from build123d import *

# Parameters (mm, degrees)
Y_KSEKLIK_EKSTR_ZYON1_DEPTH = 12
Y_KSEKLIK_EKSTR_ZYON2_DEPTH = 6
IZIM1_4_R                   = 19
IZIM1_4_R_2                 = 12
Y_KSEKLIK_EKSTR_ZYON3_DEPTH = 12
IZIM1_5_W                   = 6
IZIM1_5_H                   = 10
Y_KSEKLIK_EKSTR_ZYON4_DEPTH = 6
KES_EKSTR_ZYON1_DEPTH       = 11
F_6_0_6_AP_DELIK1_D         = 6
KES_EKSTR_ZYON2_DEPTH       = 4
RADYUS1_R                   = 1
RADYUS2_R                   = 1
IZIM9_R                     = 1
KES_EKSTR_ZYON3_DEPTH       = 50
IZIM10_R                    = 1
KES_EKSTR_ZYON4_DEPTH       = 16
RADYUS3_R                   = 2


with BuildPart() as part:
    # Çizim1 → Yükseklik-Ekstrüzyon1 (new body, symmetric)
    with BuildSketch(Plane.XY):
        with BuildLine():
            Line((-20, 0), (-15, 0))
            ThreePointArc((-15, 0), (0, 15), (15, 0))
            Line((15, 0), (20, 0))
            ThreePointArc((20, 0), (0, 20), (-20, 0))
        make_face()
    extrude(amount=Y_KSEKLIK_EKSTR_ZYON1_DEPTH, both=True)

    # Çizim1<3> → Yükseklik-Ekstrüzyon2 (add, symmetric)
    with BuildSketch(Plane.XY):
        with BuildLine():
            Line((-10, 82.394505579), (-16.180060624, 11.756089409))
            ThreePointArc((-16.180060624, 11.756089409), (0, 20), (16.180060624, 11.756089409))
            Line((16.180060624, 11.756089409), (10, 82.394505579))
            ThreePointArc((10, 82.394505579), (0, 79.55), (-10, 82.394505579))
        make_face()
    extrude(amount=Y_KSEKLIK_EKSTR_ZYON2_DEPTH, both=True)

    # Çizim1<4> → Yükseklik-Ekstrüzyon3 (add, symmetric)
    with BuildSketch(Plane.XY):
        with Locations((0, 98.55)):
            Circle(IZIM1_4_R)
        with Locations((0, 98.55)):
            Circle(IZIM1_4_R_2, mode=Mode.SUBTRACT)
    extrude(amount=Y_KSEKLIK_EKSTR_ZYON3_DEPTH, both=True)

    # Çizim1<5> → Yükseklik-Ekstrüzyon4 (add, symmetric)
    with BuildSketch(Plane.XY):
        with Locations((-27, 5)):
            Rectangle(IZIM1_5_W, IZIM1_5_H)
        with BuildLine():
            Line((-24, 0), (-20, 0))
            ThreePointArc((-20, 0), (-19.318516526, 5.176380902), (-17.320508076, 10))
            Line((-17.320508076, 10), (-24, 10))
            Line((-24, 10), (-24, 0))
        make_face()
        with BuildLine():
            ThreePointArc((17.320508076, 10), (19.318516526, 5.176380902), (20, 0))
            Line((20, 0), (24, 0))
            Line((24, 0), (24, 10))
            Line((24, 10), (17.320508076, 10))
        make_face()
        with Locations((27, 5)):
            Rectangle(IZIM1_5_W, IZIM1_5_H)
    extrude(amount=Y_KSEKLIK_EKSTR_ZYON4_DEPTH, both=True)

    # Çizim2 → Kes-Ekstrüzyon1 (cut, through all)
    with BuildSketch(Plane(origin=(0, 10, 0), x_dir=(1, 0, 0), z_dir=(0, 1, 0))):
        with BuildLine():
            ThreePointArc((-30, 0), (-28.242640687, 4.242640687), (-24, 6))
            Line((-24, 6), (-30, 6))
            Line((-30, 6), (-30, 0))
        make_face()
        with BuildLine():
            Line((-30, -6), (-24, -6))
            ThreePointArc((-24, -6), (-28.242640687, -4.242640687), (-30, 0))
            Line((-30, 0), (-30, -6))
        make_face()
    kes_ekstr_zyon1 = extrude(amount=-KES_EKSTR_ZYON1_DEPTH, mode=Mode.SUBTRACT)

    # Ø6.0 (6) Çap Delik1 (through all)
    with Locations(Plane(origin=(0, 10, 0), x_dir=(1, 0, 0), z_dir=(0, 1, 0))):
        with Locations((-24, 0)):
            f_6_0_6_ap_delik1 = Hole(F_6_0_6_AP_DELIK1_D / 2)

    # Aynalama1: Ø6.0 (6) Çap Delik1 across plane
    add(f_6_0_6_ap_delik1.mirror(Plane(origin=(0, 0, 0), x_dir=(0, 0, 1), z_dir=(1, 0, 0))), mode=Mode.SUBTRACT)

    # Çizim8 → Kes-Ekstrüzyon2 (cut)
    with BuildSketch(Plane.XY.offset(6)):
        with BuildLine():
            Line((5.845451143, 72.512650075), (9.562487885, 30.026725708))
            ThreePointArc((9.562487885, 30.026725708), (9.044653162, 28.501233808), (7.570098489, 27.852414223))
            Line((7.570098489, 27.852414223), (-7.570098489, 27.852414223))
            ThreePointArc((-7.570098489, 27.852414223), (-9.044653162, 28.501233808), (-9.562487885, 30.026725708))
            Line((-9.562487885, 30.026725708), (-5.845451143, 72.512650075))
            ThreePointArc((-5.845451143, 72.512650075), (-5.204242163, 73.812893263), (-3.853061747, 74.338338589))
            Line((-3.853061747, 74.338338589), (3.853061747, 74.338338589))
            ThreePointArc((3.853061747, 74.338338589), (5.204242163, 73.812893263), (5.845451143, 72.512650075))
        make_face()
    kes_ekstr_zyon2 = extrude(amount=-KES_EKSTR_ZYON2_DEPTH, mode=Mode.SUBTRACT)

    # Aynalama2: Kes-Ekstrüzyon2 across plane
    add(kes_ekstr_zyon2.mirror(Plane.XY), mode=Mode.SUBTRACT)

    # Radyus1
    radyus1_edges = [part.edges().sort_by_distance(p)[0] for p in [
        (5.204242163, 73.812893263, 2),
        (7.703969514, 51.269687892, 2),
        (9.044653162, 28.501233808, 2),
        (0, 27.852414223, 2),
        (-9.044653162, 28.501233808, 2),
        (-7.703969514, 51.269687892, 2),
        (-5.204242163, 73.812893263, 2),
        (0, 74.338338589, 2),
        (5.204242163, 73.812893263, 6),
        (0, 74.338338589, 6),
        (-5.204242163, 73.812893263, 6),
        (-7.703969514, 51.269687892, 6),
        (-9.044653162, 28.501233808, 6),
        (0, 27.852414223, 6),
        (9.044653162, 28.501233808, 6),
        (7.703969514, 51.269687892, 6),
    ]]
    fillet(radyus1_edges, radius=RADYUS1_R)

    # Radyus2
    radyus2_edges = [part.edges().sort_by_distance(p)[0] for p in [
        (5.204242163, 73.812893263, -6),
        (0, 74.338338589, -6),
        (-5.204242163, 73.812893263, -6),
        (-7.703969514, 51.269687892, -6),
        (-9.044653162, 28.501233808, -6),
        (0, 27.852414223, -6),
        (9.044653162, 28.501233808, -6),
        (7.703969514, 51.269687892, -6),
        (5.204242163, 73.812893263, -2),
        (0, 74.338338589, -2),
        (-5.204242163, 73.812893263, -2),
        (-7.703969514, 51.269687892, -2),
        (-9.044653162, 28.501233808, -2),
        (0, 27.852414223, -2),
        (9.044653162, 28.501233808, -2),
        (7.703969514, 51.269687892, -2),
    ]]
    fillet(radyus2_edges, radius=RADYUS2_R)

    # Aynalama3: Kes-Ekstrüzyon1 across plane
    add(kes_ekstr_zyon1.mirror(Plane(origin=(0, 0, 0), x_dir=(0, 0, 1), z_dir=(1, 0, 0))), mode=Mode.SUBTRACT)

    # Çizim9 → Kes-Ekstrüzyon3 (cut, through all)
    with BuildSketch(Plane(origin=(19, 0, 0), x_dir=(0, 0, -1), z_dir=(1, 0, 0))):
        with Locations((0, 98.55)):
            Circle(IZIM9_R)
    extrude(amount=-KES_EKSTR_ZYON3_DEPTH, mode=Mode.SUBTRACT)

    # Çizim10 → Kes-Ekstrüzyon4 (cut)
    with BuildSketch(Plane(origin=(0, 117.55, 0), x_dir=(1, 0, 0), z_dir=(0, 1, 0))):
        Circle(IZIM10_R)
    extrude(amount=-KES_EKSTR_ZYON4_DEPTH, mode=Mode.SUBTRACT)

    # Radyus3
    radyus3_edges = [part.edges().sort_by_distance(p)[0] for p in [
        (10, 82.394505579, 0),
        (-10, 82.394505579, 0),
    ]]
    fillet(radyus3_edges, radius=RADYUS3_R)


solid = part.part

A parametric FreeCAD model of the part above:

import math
import FreeCAD as App
import Part
import Sketcher
Q = App.Units.Quantity


def edges_at(feature, points):
    """Names of the edges that pass closest to the given points."""
    edges = feature.Shape.Edges
    near = lambda p: min(range(len(edges)), key=lambda i: edges[i].distToShape(Part.Vertex(*p))[0])
    return sorted({f"Edge{near(p) + 1}" for p in points})

doc = App.newDocument("Part")
body = doc.addObject("PartDesign::Body", "Body")

sketch1 = body.newObject("Sketcher::SketchObject", "Sketch")
sketch1.AttachmentSupport = (doc.getObject("XY_Plane"), [""])
sketch1.MapMode = "FlatFace"
sketch1.addGeometry(Part.LineSegment(App.Vector(-20, 0, 0), App.Vector(-15, 0, 0)), False)
sketch1.addGeometry(Part.ArcOfCircle(Part.Circle(App.Vector(0, 0, 0), App.Vector(0, 0, 1), 15), math.radians(0), math.radians(180)), False)
sketch1.addGeometry(Part.LineSegment(App.Vector(15, 0, 0), App.Vector(20, 0, 0)), False)
sketch1.addGeometry(Part.ArcOfCircle(Part.Circle(App.Vector(0, 0, 0), App.Vector(0, 0, 1), 20), math.radians(0), math.radians(180)), False)
sketch1.addConstraint(Sketcher.Constraint("Coincident", 0, 2, 1, 2))
sketch1.addConstraint(Sketcher.Constraint("Coincident", 1, 1, 2, 1))
sketch1.addConstraint(Sketcher.Constraint("Coincident", 2, 2, 3, 1))
sketch1.addConstraint(Sketcher.Constraint("Coincident", 3, 2, 0, 1))
sketch1.addConstraint(Sketcher.Constraint("Horizontal", 0))
sketch1.addConstraint(Sketcher.Constraint("Horizontal", 2))
sketch1.addConstraint(Sketcher.Constraint("Coincident", 1, 3, -1, 1))
sketch1.addConstraint(Sketcher.Constraint("Coincident", 3, 3, -1, 1))
sketch1.addConstraint(Sketcher.Constraint("PointOnObject", 0, 2, -1))
sketch1.addConstraint(Sketcher.Constraint("PointOnObject", 1, 1, -1))
sketch1.addConstraint(Sketcher.Constraint("Radius", 1, Q("15 mm")))
sketch1.addConstraint(Sketcher.Constraint("Radius", 3, Q("20 mm")))
pad1 = body.newObject("PartDesign::Pad", "Pad")
pad1.Profile = sketch1
pad1.Length = 24
pad1.Midplane = True

sketch2 = body.newObject("Sketcher::SketchObject", "Sketch001")
sketch2.AttachmentSupport = (doc.getObject("XY_Plane"), [""])
sketch2.MapMode = "FlatFace"
sketch2.addGeometry(Part.LineSegment(App.Vector(-10, 82, 0), App.Vector(-16, 12, 0)), False)
sketch2.addGeometry(Part.ArcOfCircle(Part.Circle(App.Vector(0, 0, 0), App.Vector(0, 0, 1), 20), math.radians(36), math.radians(144)), False)
sketch2.addGeometry(Part.LineSegment(App.Vector(16, 12, 0), App.Vector(10, 82, 0)), False)
sketch2.addGeometry(Part.ArcOfCircle(Part.Circle(App.Vector(0, 99, 0), App.Vector(0, 0, 1), 19), math.radians(-122), math.radians(-58)), False)
sketch2.addConstraint(Sketcher.Constraint("Coincident", 0, 2, 1, 2))
sketch2.addConstraint(Sketcher.Constraint("Coincident", 1, 1, 2, 1))
sketch2.addConstraint(Sketcher.Constraint("Coincident", 2, 2, 3, 2))
sketch2.addConstraint(Sketcher.Constraint("Coincident", 3, 1, 0, 1))
sketch2.addConstraint(Sketcher.Constraint("Coincident", 1, 3, -1, 1))
sketch2.addConstraint(Sketcher.Constraint("Symmetric", 2, 2, 3, 1, -2))
sketch2.addConstraint(Sketcher.Constraint("Horizontal", 0, 2, 1, 1))
sketch2.addConstraint(Sketcher.Constraint("Radius", 1, Q("20 mm")))
sketch2.addConstraint(Sketcher.Constraint("Radius", 3, Q("19 mm")))
sketch2.addConstraint(Sketcher.Constraint("Angle", 0, Q("-95 deg")))
sketch2.addConstraint(Sketcher.Constraint("DistanceX", -1, 1, 2, 2, Q("10 mm")))
sketch2.addConstraint(Sketcher.Constraint("DistanceY", -1, 1, 3, 3, Q("98.55 mm")))
pad2 = body.newObject("PartDesign::Pad", "Pad001")
pad2.Profile = sketch2
pad2.Length = 12
pad2.Midplane = True

sketch3 = body.newObject("Sketcher::SketchObject", "Sketch002")
sketch3.AttachmentSupport = (doc.getObject("XY_Plane"), [""])
sketch3.MapMode = "FlatFace"
sketch3.addGeometry(Part.Circle(App.Vector(0, 99, 0), App.Vector(0, 0, 1), 19), False)
sketch3.addGeometry(Part.Circle(App.Vector(0, 99, 0), App.Vector(0, 0, 1), 12), False)
sketch3.addConstraint(Sketcher.Constraint("Coincident", 1, 3, 0, 3))
sketch3.addConstraint(Sketcher.Constraint("PointOnObject", 0, 3, -2))
sketch3.addConstraint(Sketcher.Constraint("Diameter", 0, Q("38 mm")))
sketch3.addConstraint(Sketcher.Constraint("Diameter", 1, Q("24 mm")))
sketch3.addConstraint(Sketcher.Constraint("DistanceY", -1, 1, 0, 3, Q("98.55 mm")))
pad3 = body.newObject("PartDesign::Pad", "Pad002")
pad3.Profile = sketch3
pad3.Length = 24
pad3.Midplane = True

sketch4 = body.newObject("Sketcher::SketchObject", "Sketch003")
sketch4.AttachmentSupport = (doc.getObject("XY_Plane"), [""])
sketch4.MapMode = "FlatFace"
sketch4.addGeometry(Part.LineSegment(App.Vector(-30, 10, 0), App.Vector(-30, 0, 0)), False)
sketch4.addGeometry(Part.LineSegment(App.Vector(-30, 0, 0), App.Vector(-20, 0, 0)), False)
sketch4.addGeometry(Part.ArcOfCircle(Part.Circle(App.Vector(0, 0, 0), App.Vector(0, 0, 1), 20), math.radians(150), math.radians(180)), False)
sketch4.addGeometry(Part.LineSegment(App.Vector(-17, 10, 0), App.Vector(-30, 10, 0)), False)
sketch4.addGeometry(Part.ArcOfCircle(Part.Circle(App.Vector(0, 0, 0), App.Vector(0, 0, 1), 20), math.radians(0), math.radians(30)), False)
sketch4.addGeometry(Part.LineSegment(App.Vector(20, 0, 0), App.Vector(30, 0, 0)), False)
sketch4.addGeometry(Part.LineSegment(App.Vector(30, 0, 0), App.Vector(30, 10, 0)), False)
sketch4.addGeometry(Part.LineSegment(App.Vector(30, 10, 0), App.Vector(17, 10, 0)), False)
sketch4.addConstraint(Sketcher.Constraint("Coincident", 0, 2, 1, 1))
sketch4.addConstraint(Sketcher.Constraint("Coincident", 1, 2, 2, 2))
sketch4.addConstraint(Sketcher.Constraint("Coincident", 2, 1, 3, 1))
sketch4.addConstraint(Sketcher.Constraint("Coincident", 3, 2, 0, 1))
sketch4.addConstraint(Sketcher.Constraint("Coincident", 4, 1, 5, 1))
sketch4.addConstraint(Sketcher.Constraint("Coincident", 5, 2, 6, 1))
sketch4.addConstraint(Sketcher.Constraint("Coincident", 6, 2, 7, 1))
sketch4.addConstraint(Sketcher.Constraint("Coincident", 7, 2, 4, 2))
sketch4.addConstraint(Sketcher.Constraint("Vertical", 0))
sketch4.addConstraint(Sketcher.Constraint("Horizontal", 1))
sketch4.addConstraint(Sketcher.Constraint("Horizontal", 3))
sketch4.addConstraint(Sketcher.Constraint("Horizontal", 5))
sketch4.addConstraint(Sketcher.Constraint("Vertical", 6))
sketch4.addConstraint(Sketcher.Constraint("Horizontal", 7))
sketch4.addConstraint(Sketcher.Constraint("Coincident", 2, 3, -1, 1))
sketch4.addConstraint(Sketcher.Constraint("Coincident", 4, 3, -1, 1))
sketch4.addConstraint(Sketcher.Constraint("Equal", 2, 4))
sketch4.addConstraint(Sketcher.Constraint("Symmetric", 0, 2, 5, 2, -1, 1))
sketch4.addConstraint(Sketcher.Constraint("PointOnObject", 0, 2, -1))
sketch4.addConstraint(Sketcher.Constraint("Horizontal", 3, 2, 6, 2))
sketch4.addConstraint(Sketcher.Constraint("Equal", 5, 0))
sketch4.addConstraint(Sketcher.Constraint("Radius", 2, Q("20 mm")))
sketch4.addConstraint(Sketcher.Constraint("DistanceX", 1, 1, 1, 2, Q("10 mm")))
pad4 = body.newObject("PartDesign::Pad", "Pad003")
pad4.Profile = sketch4
pad4.Length = 12
pad4.Midplane = True

sketch5 = body.newObject("Sketcher::SketchObject", "Sketch004")
sketch5.AttachmentSupport = (doc.getObject("XZ_Plane"), [""])
sketch5.MapMode = "FlatFace"
sketch5.AttachmentOffset = App.Placement(App.Vector(0, 0, -10), App.Rotation())
sketch5.addGeometry(Part.ArcOfCircle(Part.Circle(App.Vector(-24, 0, 0), App.Vector(0, 0, 1), 6), math.radians(180), math.radians(270)), False)
sketch5.addGeometry(Part.LineSegment(App.Vector(-24, -6, 0), App.Vector(-30, -6, 0)), False)
sketch5.addGeometry(Part.LineSegment(App.Vector(-30, -6, 0), App.Vector(-30, 0, 0)), False)
sketch5.addGeometry(Part.LineSegment(App.Vector(-30, 6, 0), App.Vector(-24, 6, 0)), False)
sketch5.addGeometry(Part.ArcOfCircle(Part.Circle(App.Vector(-24, 0, 0), App.Vector(0, 0, 1), 6), math.radians(90), math.radians(180)), False)
sketch5.addGeometry(Part.LineSegment(App.Vector(-30, 0, 0), App.Vector(-30, 6, 0)), False)
sketch5.addConstraint(Sketcher.Constraint("Tangent", 0, 2, 1, 1))
sketch5.addConstraint(Sketcher.Constraint("Coincident", 1, 2, 2, 1))
sketch5.addConstraint(Sketcher.Constraint("Tangent", 2, 2, 0, 1))
sketch5.addConstraint(Sketcher.Constraint("Tangent", 3, 2, 4, 1))
sketch5.addConstraint(Sketcher.Constraint("Tangent", 4, 2, 5, 1))
sketch5.addConstraint(Sketcher.Constraint("Coincident", 5, 2, 3, 1))
sketch5.addConstraint(Sketcher.Constraint("Horizontal", 1))
sketch5.addConstraint(Sketcher.Constraint("Vertical", 2))
sketch5.addConstraint(Sketcher.Constraint("Horizontal", 3))
sketch5.addConstraint(Sketcher.Constraint("Vertical", 5))
sketch5.addConstraint(Sketcher.Constraint("Coincident", 4, 3, 0, 3))
sketch5.addConstraint(Sketcher.Constraint("Equal", 0, 4))
sketch5.addConstraint(Sketcher.Constraint("PointOnObject", 0, 3, -1))
sketch5.addConstraint(Sketcher.Constraint("Radius", 0, Q("6 mm")))
sketch5.addConstraint(Sketcher.Constraint("DistanceX", 0, 3, -1, 1, Q("24 mm")))
pocket1 = body.newObject("PartDesign::Pocket", "Pocket")
pocket1.Profile = sketch5
pocket1.Type = "ThroughAll"
pocket1.Reversed = True

sketch6 = body.newObject("Sketcher::SketchObject", "Sketch005")
sketch6.AttachmentSupport = (doc.getObject("XZ_Plane"), [""])
sketch6.MapMode = "FlatFace"
sketch6.AttachmentOffset = App.Placement(App.Vector(0, 0, -10), App.Rotation())
sketch6.addGeometry(Part.Circle(App.Vector(-24, 0, 0), App.Vector(0, 0, 1), 3), False)
sketch6.addConstraint(Sketcher.Constraint("PointOnObject", 0, 3, -1))
sketch6.addConstraint(Sketcher.Constraint("Diameter", 0, Q("6 mm")))
sketch6.addConstraint(Sketcher.Constraint("DistanceX", 0, 3, -1, 1, Q("24 mm")))
doc.recompute()
hole = body.newObject("PartDesign::Hole", "Hole")
hole.Profile = sketch6
hole.ThreadType = "None"
hole.Diameter = 6
hole.DepthType = "ThroughAll"
hole.Reversed = True
doc.recompute()

mirrored = body.newObject("PartDesign::Mirrored", "Mirrored")
mirrored.Originals = [hole]
mirrored.MirrorPlane = (doc.getObject("YZ_Plane"), [""])
body.Tip = mirrored

sketch7 = body.newObject("Sketcher::SketchObject", "Sketch006")
sketch7.AttachmentSupport = (doc.getObject("XY_Plane"), [""])
sketch7.MapMode = "FlatFace"
sketch7.AttachmentOffset = App.Placement(App.Vector(0, 0, 6), App.Rotation())
sketch7.addGeometry(Part.LineSegment(App.Vector(9.6, 30, 0), App.Vector(5.8, 72.5, 0)), False)
sketch7.addGeometry(Part.ArcOfCircle(Part.Circle(App.Vector(3.9, 72.3, 0), App.Vector(0, 0, 1), 2), math.radians(5), math.radians(90)), False)
sketch7.addGeometry(Part.LineSegment(App.Vector(3.9, 74.3, 0), App.Vector(-3.9, 74.3, 0)), False)
sketch7.addGeometry(Part.ArcOfCircle(Part.Circle(App.Vector(-3.9, 72.3, 0), App.Vector(0, 0, 1), 2), math.radians(90), math.radians(175)), False)
sketch7.addGeometry(Part.LineSegment(App.Vector(-5.8, 72.5, 0), App.Vector(-9.6, 30, 0)), False)
sketch7.addGeometry(Part.ArcOfCircle(Part.Circle(App.Vector(-7.6, 29.9, 0), App.Vector(0, 0, 1), 2), math.radians(175), math.radians(270)), False)
sketch7.addGeometry(Part.LineSegment(App.Vector(-7.6, 27.9, 0), App.Vector(7.6, 27.9, 0)), False)
sketch7.addGeometry(Part.ArcOfCircle(Part.Circle(App.Vector(7.6, 29.9, 0), App.Vector(0, 0, 1), 2), math.radians(-90), math.radians(5)), False)
sketch7.addConstraint(Sketcher.Constraint("Tangent", 0, 2, 1, 1))
sketch7.addConstraint(Sketcher.Constraint("Tangent", 1, 2, 2, 1))
sketch7.addConstraint(Sketcher.Constraint("Tangent", 2, 2, 3, 1))
sketch7.addConstraint(Sketcher.Constraint("Tangent", 3, 2, 4, 1))
sketch7.addConstraint(Sketcher.Constraint("Tangent", 4, 2, 5, 1))
sketch7.addConstraint(Sketcher.Constraint("Tangent", 5, 2, 6, 1))
sketch7.addConstraint(Sketcher.Constraint("Tangent", 6, 2, 7, 1))
sketch7.addConstraint(Sketcher.Constraint("Tangent", 7, 2, 0, 1))
sketch7.addConstraint(Sketcher.Constraint("Horizontal", 2))
sketch7.addConstraint(Sketcher.Constraint("Horizontal", 6))
sketch7.addConstraint(Sketcher.Constraint("Equal", 1, 3))
sketch7.addConstraint(Sketcher.Constraint("Equal", 3, 5))
sketch7.addConstraint(Sketcher.Constraint("Equal", 5, 7))
sketch7.addConstraint(Sketcher.Constraint("Symmetric", 0, 2, 3, 2, -2))
sketch7.addConstraint(Sketcher.Constraint("Radius", 1, Q("2 mm")))
sketch7.addConstraint(Sketcher.Constraint("Angle", 0, Q("95 deg")))
sketch7.addConstraint(Sketcher.Constraint("DistanceX", 5, 3, -1, 1, Q("7.570098 mm")))
sketch7.addConstraint(Sketcher.Constraint("DistanceX", 2, 2, 2, 1, Q("7.706123 mm")))
sketch7.addConstraint(Sketcher.Constraint("DistanceY", -1, 1, 1, 3, Q("72.338339 mm")))
pocket2 = body.newObject("PartDesign::Pocket", "Pocket001")
pocket2.Profile = sketch7
pocket2.Length = 4
doc.recompute()

mirrored2 = body.newObject("PartDesign::Mirrored", "Mirrored001")
mirrored2.Originals = [pocket2]
mirrored2.MirrorPlane = (doc.getObject("XY_Plane"), [""])
body.Tip = mirrored2
doc.recompute()

fillet = body.newObject("PartDesign::Fillet", "Fillet")
fillet.Base = (mirrored2, edges_at(mirrored2, [
    (5.204, 73.813, 2),
    (7.704, 51.27, 2),
    (9.045, 28.501, 2),
    (0, 27.852, 2),
    (-9.045, 28.501, 2),
    (-7.704, 51.27, 2),
    (-5.204, 73.813, 2),
    (0, 74.338, 2),
    (5.204, 73.813, 6),
    (0, 74.338, 6),
    (-5.204, 73.813, 6),
    (-7.704, 51.27, 6),
    (-9.045, 28.501, 6),
    (0, 27.852, 6),
    (9.045, 28.501, 6),
    (7.704, 51.27, 6),
]))
fillet.Radius = 1
doc.recompute()

fillet2 = body.newObject("PartDesign::Fillet", "Fillet001")
fillet2.Base = (fillet, edges_at(fillet, [
    (5.204, 73.813, -6),
    (0, 74.338, -6),
    (-5.204, 73.813, -6),
    (-7.704, 51.27, -6),
    (-9.045, 28.501, -6),
    (0, 27.852, -6),
    (9.045, 28.501, -6),
    (7.704, 51.27, -6),
    (5.204, 73.813, -2),
    (0, 74.338, -2),
    (-5.204, 73.813, -2),
    (-7.704, 51.27, -2),
    (-9.045, 28.501, -2),
    (0, 27.852, -2),
    (9.045, 28.501, -2),
    (7.704, 51.27, -2),
]))
fillet2.Radius = 1
doc.recompute()

mirrored3 = body.newObject("PartDesign::Mirrored", "Mirrored002")
mirrored3.Originals = [pocket1]
mirrored3.MirrorPlane = (doc.getObject("YZ_Plane"), [""])
body.Tip = mirrored3

sketch8 = body.newObject("Sketcher::SketchObject", "Sketch007")
sketch8.AttachmentSupport = (doc.getObject("YZ_Plane"), [""])
sketch8.MapMode = "FlatFace"
sketch8.AttachmentOffset = App.Placement(App.Vector(0, 0, 19), App.Rotation())
sketch8.addGeometry(Part.Circle(App.Vector(98.5, 0, 0), App.Vector(0, 0, 1), 1), False)
sketch8.addConstraint(Sketcher.Constraint("PointOnObject", 0, 3, -1))
sketch8.addConstraint(Sketcher.Constraint("Diameter", 0, Q("2 mm")))
sketch8.addConstraint(Sketcher.Constraint("DistanceX", -1, 1, 0, 3, Q("98.55 mm")))
pocket3 = body.newObject("PartDesign::Pocket", "Pocket002")
pocket3.Profile = sketch8
pocket3.Type = "ThroughAll"

sketch9 = body.newObject("Sketcher::SketchObject", "Sketch008")
sketch9.AttachmentSupport = (doc.getObject("XZ_Plane"), [""])
sketch9.MapMode = "FlatFace"
sketch9.AttachmentOffset = App.Placement(App.Vector(0, 0, -117.55), App.Rotation())
sketch9.addGeometry(Part.Circle(App.Vector(0, 0, 0), App.Vector(0, 0, 1), 1), False)
sketch9.addConstraint(Sketcher.Constraint("Coincident", 0, 3, -1, 1))
sketch9.addConstraint(Sketcher.Constraint("Diameter", 0, Q("2 mm")))
pocket4 = body.newObject("PartDesign::Pocket", "Pocket003")
pocket4.Profile = sketch9
pocket4.Length = 16
pocket4.Reversed = True
doc.recompute()

fillet3 = body.newObject("PartDesign::Fillet", "Fillet002")
fillet3.Base = (pocket4, edges_at(pocket4, [(10, 82.395, 0), (-10, 82.395, 0)]))
fillet3.Radius = 2

doc.recompute()
